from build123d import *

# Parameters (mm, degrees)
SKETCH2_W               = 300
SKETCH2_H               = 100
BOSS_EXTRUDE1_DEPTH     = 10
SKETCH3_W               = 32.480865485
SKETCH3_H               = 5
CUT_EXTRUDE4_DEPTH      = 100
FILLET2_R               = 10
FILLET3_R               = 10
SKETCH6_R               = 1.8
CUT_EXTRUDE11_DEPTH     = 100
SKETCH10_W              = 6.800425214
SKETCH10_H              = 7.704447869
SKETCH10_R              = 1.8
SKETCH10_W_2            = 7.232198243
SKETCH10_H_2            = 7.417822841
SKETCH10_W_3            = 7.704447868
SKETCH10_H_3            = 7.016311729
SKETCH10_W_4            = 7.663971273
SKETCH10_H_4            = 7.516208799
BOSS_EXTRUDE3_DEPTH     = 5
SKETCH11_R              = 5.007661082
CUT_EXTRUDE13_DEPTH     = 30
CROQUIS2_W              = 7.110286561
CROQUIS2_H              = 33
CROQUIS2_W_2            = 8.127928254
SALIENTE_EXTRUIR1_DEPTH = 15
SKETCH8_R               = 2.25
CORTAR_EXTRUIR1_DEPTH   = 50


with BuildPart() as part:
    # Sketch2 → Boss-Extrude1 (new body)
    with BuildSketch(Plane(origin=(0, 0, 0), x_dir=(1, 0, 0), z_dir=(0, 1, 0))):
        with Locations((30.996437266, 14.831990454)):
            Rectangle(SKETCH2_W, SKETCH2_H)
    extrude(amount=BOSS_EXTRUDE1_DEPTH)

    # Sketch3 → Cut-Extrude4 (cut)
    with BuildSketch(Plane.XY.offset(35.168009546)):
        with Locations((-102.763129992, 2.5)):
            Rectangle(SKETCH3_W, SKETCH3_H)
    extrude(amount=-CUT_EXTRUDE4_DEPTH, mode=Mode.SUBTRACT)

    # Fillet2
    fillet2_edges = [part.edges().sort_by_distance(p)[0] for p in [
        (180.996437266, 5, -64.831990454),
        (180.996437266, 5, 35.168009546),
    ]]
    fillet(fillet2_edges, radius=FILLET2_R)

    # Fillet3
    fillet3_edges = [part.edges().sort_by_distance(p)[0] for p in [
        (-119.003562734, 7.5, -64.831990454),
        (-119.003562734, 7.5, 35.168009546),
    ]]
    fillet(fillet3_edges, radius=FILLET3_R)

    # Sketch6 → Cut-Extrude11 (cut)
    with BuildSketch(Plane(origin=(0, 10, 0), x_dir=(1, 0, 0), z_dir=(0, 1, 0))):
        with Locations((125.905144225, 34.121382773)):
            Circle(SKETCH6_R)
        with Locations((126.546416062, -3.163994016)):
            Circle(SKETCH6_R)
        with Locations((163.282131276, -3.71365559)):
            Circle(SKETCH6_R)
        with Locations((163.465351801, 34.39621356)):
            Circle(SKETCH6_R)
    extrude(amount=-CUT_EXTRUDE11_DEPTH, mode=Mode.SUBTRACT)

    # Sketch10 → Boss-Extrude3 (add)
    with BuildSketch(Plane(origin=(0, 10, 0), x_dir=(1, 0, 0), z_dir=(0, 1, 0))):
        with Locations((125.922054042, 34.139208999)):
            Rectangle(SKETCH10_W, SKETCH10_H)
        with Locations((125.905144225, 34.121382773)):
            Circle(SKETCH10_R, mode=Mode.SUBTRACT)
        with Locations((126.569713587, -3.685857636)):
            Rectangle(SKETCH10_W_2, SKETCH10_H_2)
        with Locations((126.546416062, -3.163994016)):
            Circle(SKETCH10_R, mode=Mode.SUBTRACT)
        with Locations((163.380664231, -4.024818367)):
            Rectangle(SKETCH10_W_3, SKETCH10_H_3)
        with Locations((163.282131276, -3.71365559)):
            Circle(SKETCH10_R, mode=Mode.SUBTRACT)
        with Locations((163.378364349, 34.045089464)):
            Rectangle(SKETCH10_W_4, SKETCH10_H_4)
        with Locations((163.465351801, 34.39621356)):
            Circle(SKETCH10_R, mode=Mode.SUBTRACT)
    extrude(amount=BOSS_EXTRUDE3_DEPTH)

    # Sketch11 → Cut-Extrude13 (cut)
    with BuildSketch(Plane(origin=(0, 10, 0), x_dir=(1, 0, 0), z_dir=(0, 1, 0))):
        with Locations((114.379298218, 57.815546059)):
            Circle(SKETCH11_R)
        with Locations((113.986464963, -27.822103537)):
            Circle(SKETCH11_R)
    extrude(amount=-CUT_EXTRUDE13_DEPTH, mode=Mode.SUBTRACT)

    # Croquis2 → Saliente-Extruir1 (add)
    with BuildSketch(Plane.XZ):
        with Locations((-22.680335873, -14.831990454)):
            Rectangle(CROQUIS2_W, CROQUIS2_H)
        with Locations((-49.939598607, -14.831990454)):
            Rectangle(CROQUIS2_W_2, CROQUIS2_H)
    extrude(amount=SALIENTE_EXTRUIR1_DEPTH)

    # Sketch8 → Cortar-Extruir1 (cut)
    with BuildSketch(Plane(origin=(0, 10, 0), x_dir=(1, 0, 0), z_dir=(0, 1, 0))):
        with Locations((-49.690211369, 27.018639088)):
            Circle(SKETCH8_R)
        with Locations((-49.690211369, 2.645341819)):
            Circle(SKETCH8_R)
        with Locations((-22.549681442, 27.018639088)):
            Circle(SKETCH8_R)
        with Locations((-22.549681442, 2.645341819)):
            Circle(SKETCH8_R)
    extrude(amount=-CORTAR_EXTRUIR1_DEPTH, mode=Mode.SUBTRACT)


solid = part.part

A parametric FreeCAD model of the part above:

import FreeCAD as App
import Part
import Sketcher
from FreeCAD import Vector


def edges_at(feature, points):
    """Names of the edges that pass closest to the given points."""
    edges = feature.Shape.Edges
    near = lambda p: min(range(len(edges)), key=lambda i: edges[i].distToShape(Part.Vertex(*p))[0])
    return sorted({f"Edge{near(p) + 1}" for p in points})


def add_polygon(sketch, points):
    """Adds a closed chain of lines whose ends are joined by coincident constraints."""
    first, n = sketch.GeometryCount, len(points)
    for a, b in zip(points, points[1:] + points[:1]):
        sketch.addGeometry(Part.LineSegment(App.Vector(*a, 0), App.Vector(*b, 0)), False)
    for i in range(n):
        sketch.addConstraint(Sketcher.Constraint("Coincident", first + i, 2, first + (i + 1) % n, 1))

doc = App.newDocument("Part")
params = doc.addObject("Spreadsheet::Sheet", "Params")
for row, (alias, value) in enumerate([
    ("sketch1_width", "300 mm"),
    ("sketch1_height", "100 mm"),
    ("pad1_length", "10 mm"),
    ("sketch2_height", "5 mm"),
    ("pocket1_length", "100 mm"),
    ("fillet_radius", "10 mm"),
    ("fillet2_radius", "10 mm"),
    ("sketch3_diameter", "3.6 mm"),
    ("pocket2_length", "100 mm"),
    ("sketch4_diameter", "3.6 mm"),
    ("pad2_length", "5 mm"),
    ("pocket3_length", "30 mm"),
    ("sketch6_height", "33 mm"),
    ("pad3_length", "15 mm"),
    ("sketch7_diameter", "4.5 mm"),
    ("pocket4_length", "50 mm"),
], start=1):
    params.set(f"A{row}", alias)
    params.set(f"B{row}", "=" + value)
    params.setAlias(f"B{row}", alias)

body = doc.addObject("PartDesign::Body", "Body")

sketch1 = doc.addObject("Sketcher::SketchObject", "Sketch")
body.addObject(sketch1)
sketch1.AttachmentSupport = (doc.XZ_Plane, [""])
sketch1.MapMode = "FlatFace"
add_polygon(sketch1, [(-119, -65), (-119, 35), (181, 35), (181, -65)])
sketch1.addConstraint(Sketcher.Constraint("Vertical", 0))
sketch1.addConstraint(Sketcher.Constraint("Horizontal", 1))
sketch1.addConstraint(Sketcher.Constraint("Vertical", 2))
sketch1.addConstraint(Sketcher.Constraint("Horizontal", 3))
sketch1.addConstraint(Sketcher.Constraint("DistanceX", 1, 1, 1, 2, 300.0))
sketch1.addConstraint(Sketcher.Constraint("DistanceY", 0, 1, 0, 2, 100.0))
sketch1.addConstraint(Sketcher.Constraint("DistanceY", -1, 1, 0, 2, 35.16801))
sketch1.addConstraint(Sketcher.Constraint("DistanceX", 0, 2, -1, 1, 119.003563))
sketch1.setExpression("Constraints[8]", "Params.sketch1_width")
sketch1.setExpression("Constraints[9]", "Params.sketch1_height")
pad1 = doc.addObject("PartDesign::Pad", "Pad")
body.addObject(pad1)
pad1.Profile = sketch1
pad1.setExpression("Length", "Params.pad1_length")
pad1.Reversed = True

sketch2 = doc.addObject("Sketcher::SketchObject", "Sketch001")
body.addObject(sketch2)
sketch2.AttachmentSupport = (doc.XY_Plane, [""])
sketch2.MapMode = "FlatFace"
sketch2.AttachmentOffset = App.Placement(Vector(0, 0, 35.16801), App.Rotation())
add_polygon(sketch2, [(-119, 5), (-119, 0), (-87, 0), (-87, 5)])
sketch2.addConstraint(Sketcher.Constraint("Vertical", 0))
sketch2.addConstraint(Sketcher.Constraint("Horizontal", 1))
sketch2.addConstraint(Sketcher.Constraint("Vertical", 2))
sketch2.addConstraint(Sketcher.Constraint("Horizontal", 3))
sketch2.addConstraint(Sketcher.Constraint("PointOnObject", 0, 2, -1))
sketch2.addConstraint(Sketcher.Constraint("DistanceY", 0, 2, 0, 1, 5.0))
sketch2.addConstraint(Sketcher.Constraint("DistanceX", 1, 1, 1, 2, 32.480865))
sketch2.addConstraint(Sketcher.Constraint("DistanceX", 0, 2, -1, 1, 119.003563))
sketch2.setExpression("Constraints[9]", "Params.sketch2_height")
pocket1 = doc.addObject("PartDesign::Pocket", "Pocket")
body.addObject(pocket1)
pocket1.Profile = sketch2
pocket1.setExpression("Length", "Params.pocket1_length")
doc.recompute()

fillet = doc.addObject("PartDesign::Fillet", "Fillet")
body.addObject(fillet)
fillet.Base = (pocket1, edges_at(pocket1, [(180.996, 5, -64.832), (180.996, 5, 35.168)]))
fillet.setExpression("Radius", "Params.fillet_radius")
doc.recompute()

fillet2 = doc.addObject("PartDesign::Fillet", "Fillet001")
body.addObject(fillet2)
fillet2.Base = (fillet, edges_at(fillet, [(-119.004, 7.5, -64.832), (-119.004, 7.5, 35.168)]))
fillet2.setExpression("Radius", "Params.fillet2_radius")

sketch3 = doc.addObject("Sketcher::SketchObject", "Sketch002")
body.addObject(sketch3)
sketch3.AttachmentSupport = (doc.XZ_Plane, [""])
sketch3.MapMode = "FlatFace"
sketch3.AttachmentOffset = App.Placement(Vector(0, 0, -10), App.Rotation())
sketch3.addGeometry(Part.Circle(Vector(125.9, -34.1, 0), Vector(0, 0, 1), 1.8), False)
sketch3.addGeometry(Part.Circle(Vector(126.5, 3.2, 0), Vector(0, 0, 1), 1.8), False)
sketch3.addGeometry(Part.Circle(Vector(163.3, 3.7, 0), Vector(0, 0, 1), 1.8), False)
sketch3.addGeometry(Part.Circle(Vector(163.5, -34.4, 0), Vector(0, 0, 1), 1.8), False)
sketch3.addConstraint(Sketcher.Constraint("Equal", 0, 1))
sketch3.addConstraint(Sketcher.Constraint("Equal", 1, 2))
sketch3.addConstraint(Sketcher.Constraint("Equal", 2, 3))
sketch3.addConstraint(Sketcher.Constraint("Diameter", 0, 3.6))
sketch3.addConstraint(Sketcher.Constraint("DistanceX", -1, 1, 2, 3, 163.282131))
sketch3.addConstraint(Sketcher.Constraint("DistanceX", -1, 1, 3, 3, 163.465352))
sketch3.addConstraint(Sketcher.Constraint("DistanceX", 0, 3, 1, 3, 0.641272))
sketch3.addConstraint(Sketcher.Constraint("DistanceY", 1, 3, 2, 3, 0.549662))
sketch3.addConstraint(Sketcher.Constraint("DistanceY", 0, 3, 2, 3, 37.835038))
sketch3.addConstraint(Sketcher.Constraint("DistanceY", 3, 3, 0, 3, 0.274831))
sketch3.addConstraint(Sketcher.Constraint("DistanceX", -1, 1, 0, 3, 125.905144))
sketch3.addConstraint(Sketcher.Constraint("DistanceY", 0, 3, -1, 1, 34.121383))
sketch3.setExpression("Constraints[3]", "Params.sketch3_diameter")
pocket2 = doc.addObject("PartDesign::Pocket", "Pocket001")
body.addObject(pocket2)
pocket2.Profile = sketch3
pocket2.setExpression("Length", "Params.pocket2_length")
pocket2.Reversed = True

sketch4 = doc.addObject("Sketcher::SketchObject", "Sketch003")
body.addObject(sketch4)
sketch4.AttachmentSupport = (doc.XZ_Plane, [""])
sketch4.MapMode = "FlatFace"
sketch4.AttachmentOffset = App.Placement(Vector(0, 0, -10), App.Rotation())
add_polygon(sketch4, [(122.5, -38), (122.5, -30.3), (129.3, -30.3), (129.3, -38)])
sketch4.addGeometry(Part.Circle(Vector(125.9, -34.1, 0), Vector(0, 0, 1), 1.8), False)
add_polygon(sketch4, [(123, 0), (123, 7.4), (130.2, 7.4), (130.2, 0)])
sketch4.addGeometry(Part.Circle(Vector(126.5, 3.2, 0), Vector(0, 0, 1), 1.8), False)
add_polygon(sketch4, [(159.5, 0.5), (159.5, 7.5), (167.2, 7.5), (167.2, 0.5)])
sketch4.addGeometry(Part.Circle(Vector(163.3, 3.7, 0), Vector(0, 0, 1), 1.8), False)
add_polygon(sketch4, [(159.5, -37.8), (159.5, -30.3), (167.2, -30.3), (167.2, -37.8)])
sketch4.addGeometry(Part.Circle(Vector(163.5, -34.4, 0), Vector(0, 0, 1), 1.8), False)
sketch4.addConstraint(Sketcher.Constraint("Vertical", 0))
sketch4.addConstraint(Sketcher.Constraint("Horizontal", 1))
sketch4.addConstraint(Sketcher.Constraint("Vertical", 2))
sketch4.addConstraint(Sketcher.Constraint("Horizontal", 3))
sketch4.addConstraint(Sketcher.Constraint("Vertical", 5))
sketch4.addConstraint(Sketcher.Constraint("Horizontal", 6))
sketch4.addConstraint(Sketcher.Constraint("Vertical", 7))
sketch4.addConstraint(Sketcher.Constraint("Horizontal", 8))
sketch4.addConstraint(Sketcher.Constraint("Vertical", 10))
sketch4.addConstraint(Sketcher.Constraint("Horizontal", 11))
sketch4.addConstraint(Sketcher.Constraint("Vertical", 12))
sketch4.addConstraint(Sketcher.Constraint("Horizontal", 13))
sketch4.addConstraint(Sketcher.Constraint("Vertical", 15))
sketch4.addConstraint(Sketcher.Constraint("Horizontal", 16))
sketch4.addConstraint(Sketcher.Constraint("Vertical", 17))
sketch4.addConstraint(Sketcher.Constraint("Horizontal", 18))
sketch4.addConstraint(Sketcher.Constraint("Equal", 4, 9))
sketch4.addConstraint(Sketcher.Constraint("Equal", 9, 14))
sketch4.addConstraint(Sketcher.Constraint("Equal", 14, 19))
sketch4.addConstraint(Sketcher.Constraint("Horizontal", 1, 2, 15, 2))
sketch4.addConstraint(Sketcher.Constraint("Equal", 13, 0))
sketch4.addConstraint(Sketcher.Constraint("Diameter", 4, 3.6))
sketch4.addConstraint(Sketcher.Constraint("DistanceX", 6, 1, 6, 2, 7.232198))
sketch4.addConstraint(Sketcher.Constraint("DistanceX", 19, 3, 16, 2, 3.744998))
sketch4.addConstraint(Sketcher.Constraint("DistanceX", 16, 1, 16, 2, 7.663971))
sketch4.addConstraint(Sketcher.Constraint("DistanceY", 10, 1, 10, 2, 7.016312))
sketch4.addConstraint(Sketcher.Constraint("DistanceY", 15, 1, 15, 2, 7.516209))
sketch4.addConstraint(Sketcher.Constraint("DistanceX", 5, 2, 9, 3, 3.592802))
sketch4.addConstraint(Sketcher.Constraint("DistanceX", 1, 1, 1, 2, 6.800425))
sketch4.addConstraint(Sketcher.Constraint("DistanceX", 11, 1, 11, 2, 7.704448))
sketch4.addConstraint(Sketcher.Constraint("DistanceY", 5, 1, 5, 2, 7.417823))
sketch4.addConstraint(Sketcher.Constraint("DistanceX", -1, 1, 14, 3, 163.282131))
sketch4.addConstraint(Sketcher.Constraint("DistanceX", -1, 1, 19, 3, 163.465352))
sketch4.addConstraint(Sketcher.Constraint("DistanceX", -1, 1, 0, 2, 122.521841))
sketch4.addConstraint(Sketcher.Constraint("DistanceY", -1, 1, 5, 2, 7.394769))
sketch4.addConstraint(Sketcher.Constraint("DistanceX", -1, 1, 10, 2, 159.52844))
sketch4.addConstraint(Sketcher.Constraint("DistanceX", 4, 3, 9, 3, 0.641272))
sketch4.addConstraint(Sketcher.Constraint("DistanceY", 9, 3, 14, 3, 0.549662))
sketch4.addConstraint(Sketcher.Constraint("DistanceY", 4, 3, 14, 3, 37.835038))
sketch4.addConstraint(Sketcher.Constraint("DistanceY", 19, 3, 4, 3, 0.274831))
sketch4.addConstraint(Sketcher.Constraint("DistanceY", 0, 2, 9, 3, 33.450979))
sketch4.addConstraint(Sketcher.Constraint("DistanceX", 9, 3, 1, 2, 2.775851))
sketch4.addConstraint(Sketcher.Constraint("DistanceY", 4, 3, 5, 2, 41.516152))
sketch4.addConstraint(Sketcher.Constraint("DistanceY", 14, 3, 10, 2, 3.819319))
sketch4.setExpression("Constraints[37]", "Params.sketch4_diameter")
pad2 = doc.addObject("PartDesign::Pad", "Pad001")
body.addObject(pad2)
pad2.Profile = sketch4
pad2.setExpression("Length", "Params.pad2_length")
pad2.Reversed = True

sketch5 = doc.addObject("Sketcher::SketchObject", "Sketch004")
body.addObject(sketch5)
sketch5.AttachmentSupport = (doc.XZ_Plane, [""])
sketch5.MapMode = "FlatFace"
sketch5.AttachmentOffset = App.Placement(Vector(0, 0, -10), App.Rotation())
sketch5.addGeometry(Part.Circle(Vector(114, -58, 0), Vector(0, 0, 1), 5), False)
sketch5.addGeometry(Part.Circle(Vector(114, 28, 0), Vector(0, 0, 1), 5), False)
sketch5.addConstraint(Sketcher.Constraint("Equal", 0, 1))
sketch5.addConstraint(Sketcher.Constraint("Diameter", 0, 10.015322))
sketch5.addConstraint(Sketcher.Constraint("DistanceX", -1, 1, 0, 3, 114.379298))
sketch5.addConstraint(Sketcher.Constraint("DistanceY", 0, 3, 1, 3, 85.63765))
sketch5.addConstraint(Sketcher.Constraint("DistanceY", 0, 3, -1, 1, 57.815546))
sketch5.addConstraint(Sketcher.Constraint("DistanceX", -1, 1, 1, 3, 113.986465))
pocket3 = doc.addObject("PartDesign::Pocket", "Pocket002")
body.addObject(pocket3)
pocket3.Profile = sketch5
pocket3.setExpression("Length", "Params.pocket3_length")
pocket3.Reversed = True

sketch6 = doc.addObject("Sketcher::SketchObject", "Sketch005")
body.addObject(sketch6)
sketch6.AttachmentSupport = (doc.XZ_Plane, [""])
sketch6.MapMode = "FlatFace"
add_polygon(sketch6, [(-26, 2), (-26, -31), (-19, -31), (-19, 2)])
add_polygon(sketch6, [(-54, 2), (-54, -31), (-46, -31), (-46, 2)])
sketch6.addConstraint(Sketcher.Constraint("Vertical", 0))
sketch6.addConstraint(Sketcher.Constraint("Horizontal", 1))
sketch6.addConstraint(Sketcher.Constraint("Vertical", 2))
sketch6.addConstraint(Sketcher.Constraint("Horizontal", 3))
sketch6.addConstraint(Sketcher.Constraint("Vertical", 4))
sketch6.addConstraint(Sketcher.Constraint("Horizontal", 5))
sketch6.addConstraint(Sketcher.Constraint("Vertical", 6))
sketch6.addConstraint(Sketcher.Constraint("Horizontal", 7))
sketch6.addConstraint(Sketcher.Constraint("Horizontal", 1, 2, 4, 2))
sketch6.addConstraint(Sketcher.Constraint("Horizontal", 3, 2, 6, 2))
sketch6.addConstraint(Sketcher.Constraint("DistanceY", 0, 2, 0, 1, 33.0))
sketch6.addConstraint(Sketcher.Constraint("DistanceX", 5, 1, 5, 2, 8.127928))
sketch6.addConstraint(Sketcher.Constraint("DistanceX", 1, 1, 1, 2, 7.110287))
sketch6.addConstraint(Sketcher.Constraint("DistanceX", 0, 2, -1, 1, 26.235479))
sketch6.addConstraint(Sketcher.Constraint("DistanceY", 0, 2, -1, 1, 31.33199))
sketch6.addConstraint(Sketcher.Constraint("DistanceX", 4, 2, 1, 2, 34.87837))
sketch6.setExpression("Constraints[18]", "Params.sketch6_height")
pad3 = doc.addObject("PartDesign::Pad", "Pad002")
body.addObject(pad3)
pad3.Profile = sketch6
pad3.setExpression("Length", "Params.pad3_length")

sketch7 = doc.addObject("Sketcher::SketchObject", "Sketch006")
body.addObject(sketch7)
sketch7.AttachmentSupport = (doc.XZ_Plane, [""])
sketch7.MapMode = "FlatFace"
sketch7.AttachmentOffset = App.Placement(Vector(0, 0, -10), App.Rotation())
sketch7.addGeometry(Part.Circle(Vector(-49.7, -27, 0), Vector(0, 0, 1), 2.2), False)
sketch7.addGeometry(Part.Circle(Vector(-49.7, -2.6, 0), Vector(0, 0, 1), 2.2), False)
sketch7.addGeometry(Part.Circle(Vector(-22.5, -27, 0), Vector(0, 0, 1), 2.2), False)
sketch7.addGeometry(Part.Circle(Vector(-22.5, -2.6, 0), Vector(0, 0, 1), 2.2), False)
sketch7.addConstraint(Sketcher.Constraint("Equal", 0, 1))
sketch7.addConstraint(Sketcher.Constraint("Equal", 1, 2))
sketch7.addConstraint(Sketcher.Constraint("Equal", 2, 3))
sketch7.addConstraint(Sketcher.Constraint("Horizontal", 0, 3, 2, 3))
sketch7.addConstraint(Sketcher.Constraint("Horizontal", 1, 3, 3, 3))
sketch7.addConstraint(Sketcher.Constraint("Vertical", 0, 3, 1, 3))
sketch7.addConstraint(Sketcher.Constraint("Vertical", 2, 3, 3, 3))
sketch7.addConstraint(Sketcher.Constraint("Diameter", 0, 4.5))
sketch7.addConstraint(Sketcher.Constraint("DistanceX", 0, 3, -1, 1, 49.690211))
sketch7.addConstraint(Sketcher.Constraint("DistanceY", 0, 3, -1, 1, 27.018639))
sketch7.addConstraint(Sketcher.Constraint("DistanceY", 1, 3, -1, 1, 2.645342))
sketch7.addConstraint(Sketcher.Constraint("DistanceX", 2, 3, -1, 1, 22.549681))
sketch7.setExpression("Constraints[7]", "Params.sketch7_diameter")
pocket4 = doc.addObject("PartDesign::Pocket", "Pocket003")
body.addObject(pocket4)
pocket4.Profile = sketch7
pocket4.setExpression("Length", "Params.pocket4_length")
pocket4.Reversed = True

doc.recompute()
